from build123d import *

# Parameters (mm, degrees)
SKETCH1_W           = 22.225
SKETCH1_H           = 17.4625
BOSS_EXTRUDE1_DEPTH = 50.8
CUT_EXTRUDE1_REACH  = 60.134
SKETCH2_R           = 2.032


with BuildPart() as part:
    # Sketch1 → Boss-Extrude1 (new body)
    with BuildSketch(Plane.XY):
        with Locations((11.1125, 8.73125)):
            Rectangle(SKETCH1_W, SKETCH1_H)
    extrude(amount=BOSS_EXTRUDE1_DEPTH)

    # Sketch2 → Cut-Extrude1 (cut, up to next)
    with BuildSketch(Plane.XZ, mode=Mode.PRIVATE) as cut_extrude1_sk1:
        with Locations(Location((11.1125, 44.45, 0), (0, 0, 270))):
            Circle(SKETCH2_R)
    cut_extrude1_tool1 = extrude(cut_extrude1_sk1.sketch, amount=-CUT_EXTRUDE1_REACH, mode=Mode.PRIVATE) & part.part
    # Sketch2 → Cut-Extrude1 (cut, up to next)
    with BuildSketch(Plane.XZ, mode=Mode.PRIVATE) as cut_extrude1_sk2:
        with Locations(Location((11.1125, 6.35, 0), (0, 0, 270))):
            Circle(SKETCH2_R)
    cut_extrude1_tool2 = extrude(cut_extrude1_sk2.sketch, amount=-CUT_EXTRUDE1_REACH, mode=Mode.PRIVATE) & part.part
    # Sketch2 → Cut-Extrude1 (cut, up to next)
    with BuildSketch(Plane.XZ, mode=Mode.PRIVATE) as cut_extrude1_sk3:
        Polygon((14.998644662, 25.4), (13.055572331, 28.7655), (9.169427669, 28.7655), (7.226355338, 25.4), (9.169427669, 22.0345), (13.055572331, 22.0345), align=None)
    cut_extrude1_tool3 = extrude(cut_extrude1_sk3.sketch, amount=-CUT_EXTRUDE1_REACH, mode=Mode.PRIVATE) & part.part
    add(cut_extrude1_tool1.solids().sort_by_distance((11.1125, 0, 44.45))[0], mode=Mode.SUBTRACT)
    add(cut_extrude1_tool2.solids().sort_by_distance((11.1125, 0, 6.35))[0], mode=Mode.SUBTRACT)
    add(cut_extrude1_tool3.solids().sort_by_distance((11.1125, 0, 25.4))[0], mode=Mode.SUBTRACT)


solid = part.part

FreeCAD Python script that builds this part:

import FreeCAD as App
import Part
import Sketcher
from FreeCAD import Vector
Q = App.Units.Quantity

doc = App.newDocument("Part")
params = doc.addObject("Spreadsheet::Sheet", "Params")
for row, (alias, value) in enumerate([
    ("sketch1_width", "0.875 in"),
    ("sketch1_height", "0.6875 in"),
    ("pad1_length", "2 in"),
    ("sketch2_diameter", "0.16 in"),
    ("sketch3_diameter", "0.16 in"),
], start=1):
    params.set(f"A{row}", alias)
    params.set(f"B{row}", "=" + value)
    params.setAlias(f"B{row}", alias)

body = doc.addObject("PartDesign::Body", "Body")

sketch1 = body.newObject("Sketcher::SketchObject", "Sketch")
sketch1.AttachmentSupport = (doc.getObject("XY_Plane"), [""])
sketch1.MapMode = "FlatFace"
sketch1.addGeometry([
    Part.LineSegment(Vector(0, 17.4625, 0), Vector(0, 0, 0)),
    Part.LineSegment(Vector(0, 0, 0), Vector(22.225, 0, 0)),
    Part.LineSegment(Vector(22.225, 0, 0), Vector(22.225, 17.4625, 0)),
    Part.LineSegment(Vector(22.225, 17.4625, 0), Vector(0, 17.4625, 0)),
], False)
sketch1.addConstraint([
    Sketcher.Constraint("Coincident", 0, 2, 1, 1),
    Sketcher.Constraint("Coincident", 1, 2, 2, 1),
    Sketcher.Constraint("Coincident", 2, 2, 3, 1),
    Sketcher.Constraint("Coincident", 3, 2, 0, 1),
    Sketcher.Constraint("Vertical", 0),
    Sketcher.Constraint("Horizontal", 1),
    Sketcher.Constraint("Vertical", 2),
    Sketcher.Constraint("Horizontal", 3),
    Sketcher.Constraint("Coincident", 0, 2, -1, 1),
    Sketcher.Constraint("DistanceX", 1, 1, 1, 2, Q("0.875 in")),
    Sketcher.Constraint("DistanceY", 0, 2, 0, 1, Q("0.6875 in")),
])
sketch1.setExpression("Constraints[9]", "Params.sketch1_width")
sketch1.setExpression("Constraints[10]", "Params.sketch1_height")
pad1 = body.newObject("PartDesign::Pad", "Pad")
pad1.Profile = sketch1
pad1.setExpression("Length", "Params.pad1_length")

sketch2 = body.newObject("Sketcher::SketchObject", "Sketch001")
sketch2.AttachmentSupport = (doc.getObject("XZ_Plane"), [""])
sketch2.MapMode = "FlatFace"
sketch2.addGeometry(Part.Circle(Vector(11.1125, 44.45, 0), Vector(0, 0, 1), 2.032), False)
sketch2.addConstraint([
    Sketcher.Constraint("Diameter", 0, Q("0.16 in")),
    Sketcher.Constraint("DistanceY", -1, 1, 0, 3, Q("1.75 in")),
    Sketcher.Constraint("DistanceX", -1, 1, 0, 3, Q("0.4375 in")),
])
sketch2.setExpression("Constraints[0]", "Params.sketch2_diameter")
pocket1 = body.newObject("PartDesign::Pocket", "Pocket")
pocket1.Profile = sketch2
pocket1.Type = "UpToFirst"

sketch3 = body.newObject("Sketcher::SketchObject", "Sketch002")
sketch3.AttachmentSupport = (doc.getObject("XZ_Plane"), [""])
sketch3.MapMode = "FlatFace"
sketch3.addGeometry(Part.Circle(Vector(11.1125, 6.35, 0), Vector(0, 0, 1), 2.032), False)
sketch3.addConstraint([
    Sketcher.Constraint("Diameter", 0, Q("0.16 in")),
    Sketcher.Constraint("DistanceY", -1, 1, 0, 3, Q("0.25 in")),
    Sketcher.Constraint("DistanceX", -1, 1, 0, 3, Q("0.4375 in")),
])
sketch3.setExpression("Constraints[0]", "Params.sketch3_diameter")
pocket2 = body.newObject("PartDesign::Pocket", "Pocket001")
pocket2.Profile = sketch3
pocket2.Type = "UpToFirst"

sketch4 = body.newObject("Sketcher::SketchObject", "Sketch003")
sketch4.AttachmentSupport = (doc.getObject("XZ_Plane"), [""])
sketch4.MapMode = "FlatFace"
sketch4.addGeometry([
    Part.LineSegment(Vector(14.998645, 25.4, 0), Vector(13.055572, 28.7655, 0)),
    Part.LineSegment(Vector(13.055572, 28.7655, 0), Vector(9.169428, 28.7655, 0)),
    Part.LineSegment(Vector(9.169428, 28.7655, 0), Vector(7.226355, 25.4, 0)),
    Part.LineSegment(Vector(7.226355, 25.4, 0), Vector(9.169428, 22.0345, 0)),
    Part.LineSegment(Vector(9.169428, 22.0345, 0), Vector(13.055572, 22.0345, 0)),
    Part.LineSegment(Vector(13.055572, 22.0345, 0), Vector(14.998645, 25.4, 0)),
], False)
sketch4.addConstraint([
    Sketcher.Constraint("Coincident", 0, 2, 1, 1),
    Sketcher.Constraint("Coincident", 1, 2, 2, 1),
    Sketcher.Constraint("Coincident", 2, 2, 3, 1),
    Sketcher.Constraint("Coincident", 3, 2, 4, 1),
    Sketcher.Constraint("Coincident", 4, 2, 5, 1),
    Sketcher.Constraint("Coincident", 5, 2, 0, 1),
    Sketcher.Constraint("Horizontal", 1),
    Sketcher.Constraint("Horizontal", 4),
    Sketcher.Constraint("Parallel", 0, 3),
    Sketcher.Constraint("Parallel", 2, 5),
    Sketcher.Constraint("Horizontal", 2, 2, 5, 2),
    Sketcher.Constraint("Vertical", 1, 2, 3, 2),
    Sketcher.Constraint("Vertical", 0, 2, 4, 2),
    Sketcher.Constraint("DistanceY", -1, 1, 2, 2, Q("1 in")),
    Sketcher.Constraint("Angle", 0, Q("120 deg")),
    Sketcher.Constraint("DistanceY", 3, 2, 1, 2, Q("0.265 in")),
    Sketcher.Constraint("DistanceX", 1, 2, 1, 1, 3.886145),
    Sketcher.Constraint("DistanceX", -1, 1, 0, 2, 13.055572),
])
pocket3 = body.newObject("PartDesign::Pocket", "Pocket002")
pocket3.Profile = sketch4
pocket3.Type = "UpToFirst"

doc.recompute()
